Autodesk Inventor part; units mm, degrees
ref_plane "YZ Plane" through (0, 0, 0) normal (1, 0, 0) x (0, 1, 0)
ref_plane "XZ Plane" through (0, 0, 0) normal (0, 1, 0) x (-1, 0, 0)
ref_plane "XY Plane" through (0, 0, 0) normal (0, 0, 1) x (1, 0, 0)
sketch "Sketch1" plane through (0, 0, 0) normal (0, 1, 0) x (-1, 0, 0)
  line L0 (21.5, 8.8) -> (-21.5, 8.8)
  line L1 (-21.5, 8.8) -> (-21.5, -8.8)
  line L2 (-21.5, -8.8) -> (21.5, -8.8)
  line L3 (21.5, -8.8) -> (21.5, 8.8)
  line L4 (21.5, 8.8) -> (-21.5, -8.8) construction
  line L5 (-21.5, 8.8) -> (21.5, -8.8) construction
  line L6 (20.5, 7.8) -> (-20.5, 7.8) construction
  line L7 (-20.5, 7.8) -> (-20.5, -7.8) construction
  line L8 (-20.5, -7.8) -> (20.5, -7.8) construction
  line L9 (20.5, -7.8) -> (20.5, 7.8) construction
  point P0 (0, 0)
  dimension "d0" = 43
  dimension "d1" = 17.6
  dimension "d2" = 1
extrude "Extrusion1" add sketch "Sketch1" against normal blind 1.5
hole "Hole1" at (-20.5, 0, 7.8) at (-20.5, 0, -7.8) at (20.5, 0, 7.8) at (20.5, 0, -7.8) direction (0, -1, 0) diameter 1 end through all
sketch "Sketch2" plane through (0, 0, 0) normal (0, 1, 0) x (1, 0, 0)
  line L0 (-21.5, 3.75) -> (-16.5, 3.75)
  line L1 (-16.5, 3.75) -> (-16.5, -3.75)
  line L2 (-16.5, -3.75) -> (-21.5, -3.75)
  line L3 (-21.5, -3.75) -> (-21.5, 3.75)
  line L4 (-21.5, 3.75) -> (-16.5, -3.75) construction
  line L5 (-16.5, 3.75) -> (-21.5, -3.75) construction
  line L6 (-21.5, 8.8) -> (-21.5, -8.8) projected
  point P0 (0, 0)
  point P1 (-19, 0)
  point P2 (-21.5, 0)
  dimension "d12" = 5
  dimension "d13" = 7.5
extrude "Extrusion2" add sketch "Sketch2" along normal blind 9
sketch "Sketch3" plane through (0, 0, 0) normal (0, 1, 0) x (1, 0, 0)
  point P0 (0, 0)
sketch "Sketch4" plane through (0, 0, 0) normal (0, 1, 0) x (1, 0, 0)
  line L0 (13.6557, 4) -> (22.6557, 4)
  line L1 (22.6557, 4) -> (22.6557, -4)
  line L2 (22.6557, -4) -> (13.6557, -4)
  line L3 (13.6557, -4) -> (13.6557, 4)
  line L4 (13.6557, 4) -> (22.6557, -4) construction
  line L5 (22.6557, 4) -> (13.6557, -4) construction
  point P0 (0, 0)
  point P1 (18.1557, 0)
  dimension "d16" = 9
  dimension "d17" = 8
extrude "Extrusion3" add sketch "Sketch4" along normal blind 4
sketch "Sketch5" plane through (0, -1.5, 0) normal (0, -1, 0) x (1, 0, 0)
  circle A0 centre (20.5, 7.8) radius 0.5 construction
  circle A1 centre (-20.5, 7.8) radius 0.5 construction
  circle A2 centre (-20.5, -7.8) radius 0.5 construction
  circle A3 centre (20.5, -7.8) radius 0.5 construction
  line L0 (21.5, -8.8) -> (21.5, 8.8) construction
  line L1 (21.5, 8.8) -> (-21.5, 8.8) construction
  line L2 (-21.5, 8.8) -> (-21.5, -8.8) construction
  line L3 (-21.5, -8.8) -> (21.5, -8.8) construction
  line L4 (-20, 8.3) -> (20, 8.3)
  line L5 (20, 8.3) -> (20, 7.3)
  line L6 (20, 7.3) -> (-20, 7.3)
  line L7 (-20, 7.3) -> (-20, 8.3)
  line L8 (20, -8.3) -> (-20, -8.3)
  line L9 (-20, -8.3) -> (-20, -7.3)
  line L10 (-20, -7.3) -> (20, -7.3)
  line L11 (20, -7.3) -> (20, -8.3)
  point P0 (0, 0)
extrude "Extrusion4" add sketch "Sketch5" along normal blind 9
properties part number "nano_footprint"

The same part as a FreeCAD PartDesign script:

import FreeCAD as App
import Part
import Sketcher

V = App.Vector


def add_polygon(sketch, points):
    """Adds a closed chain of lines whose ends are joined by coincident constraints."""
    first, n = sketch.GeometryCount, len(points)
    for a, b in zip(points, points[1:] + points[:1]):
        sketch.addGeometry(Part.LineSegment(App.Vector(*a, 0), App.Vector(*b, 0)), False)
    for i in range(n):
        sketch.addConstraint(Sketcher.Constraint("Coincident", first + i, 2, first + (i + 1) % n, 1))

doc = App.newDocument("Part")
body = doc.addObject("PartDesign::Body", "Body")

# Sketch on XZ plane
sketch1 = doc.addObject("Sketcher::SketchObject", "Sketch")
body.addObject(sketch1)
sketch1.AttachmentSupport = (doc.XZ_Plane, [""])
sketch1.MapMode = "FlatFace"
add_polygon(sketch1, [(-21.5, -8.8), (-21.5, 8.8), (21.5, 8.8), (21.5, -8.8)])  # lines 0-3
sketch1.addConstraint([
    Sketcher.Constraint("Vertical", 0),
    Sketcher.Constraint("Horizontal", 1),
    Sketcher.Constraint("Vertical", 2),
    Sketcher.Constraint("Horizontal", 3),
    Sketcher.Constraint("Symmetric", 0, 2, 2, 2, -1, 1),
    Sketcher.Constraint("DistanceX", 1, 1, 1, 2, 43.0),
    Sketcher.Constraint("DistanceY", 0, 1, 0, 2, 17.6),
])
pad1 = doc.addObject("PartDesign::Pad", "Pad")
body.addObject(pad1)
pad1.Profile = sketch1
pad1.Length = 1.5

# Sketch on XZ plane
sketch2 = doc.addObject("Sketcher::SketchObject", "Sketch001")
body.addObject(sketch2)
sketch2.AttachmentSupport = (doc.XZ_Plane, [""])
sketch2.MapMode = "FlatFace"
sketch2.addGeometry([
    Part.Circle(V(-20.5, 7.8, 0), V(0, 0, 1), 0.5),
    Part.Circle(V(-20.5, -7.8, 0), V(0, 0, 1), 0.5),
    Part.Circle(V(20.5, 7.8, 0), V(0, 0, 1), 0.5),
    Part.Circle(V(20.5, -7.8, 0), V(0, 0, 1), 0.5),
], False)
sketch2.addConstraint([
    Sketcher.Constraint("Equal", 0, 1),
    Sketcher.Constraint("Equal", 1, 2),
    Sketcher.Constraint("Equal", 2, 3),
    Sketcher.Constraint("Symmetric", 1, 3, 2, 3, -1, 1),
    Sketcher.Constraint("Symmetric", 0, 3, 3, 3, -1, 1),
    Sketcher.Constraint("Symmetric", 0, 3, 2, 3, -2),
    Sketcher.Constraint("Diameter", 0, 1.0),
    Sketcher.Constraint("DistanceX", 0, 3, 2, 3, 41.0),
    Sketcher.Constraint("DistanceY", -1, 1, 0, 3, 7.8),
])
doc.recompute()
hole = doc.addObject("PartDesign::Hole", "Hole")
body.addObject(hole)
hole.Profile = sketch2
hole.ThreadType = "None"
hole.Diameter = 1
hole.DepthType = "ThroughAll"
hole.Reversed = True

# Sketch on XZ plane
sketch3 = doc.addObject("Sketcher::SketchObject", "Sketch002")
body.addObject(sketch3)
sketch3.AttachmentSupport = (doc.XZ_Plane, [""])
sketch3.MapMode = "FlatFace"
add_polygon(sketch3, [(-16.5, -3.75), (-21.5, -3.75), (-21.5, 3.75), (-16.5, 3.75)])  # lines 0-3
sketch3.addConstraint([
    Sketcher.Constraint("Horizontal", 0),
    Sketcher.Constraint("Vertical", 1),
    Sketcher.Constraint("Horizontal", 2),
    Sketcher.Constraint("Vertical", 3),
    Sketcher.Constraint("DistanceX", 0, 2, 0, 1, 5.0),
    Sketcher.Constraint("DistanceY", 1, 1, 1, 2, 7.5),
    Sketcher.Constraint("DistanceX", 0, 2, -1, 1, 21.5),
    Sketcher.Constraint("DistanceY", 0, 2, -1, 1, 3.75),
])
pad2 = doc.addObject("PartDesign::Pad", "Pad001")
body.addObject(pad2)
pad2.Profile = sketch3
pad2.Length = 9
pad2.Reversed = True

# Sketch on XZ plane
sketch4 = doc.addObject("Sketcher::SketchObject", "Sketch003")
body.addObject(sketch4)
sketch4.AttachmentSupport = (doc.XZ_Plane, [""])
sketch4.MapMode = "FlatFace"
add_polygon(sketch4, [(22.6557, -4), (13.6557, -4), (13.6557, 4), (22.6557, 4)])  # lines 0-3
sketch4.addConstraint([
    Sketcher.Constraint("Horizontal", 0),
    Sketcher.Constraint("Vertical", 1),
    Sketcher.Constraint("Horizontal", 2),
    Sketcher.Constraint("Vertical", 3),
    Sketcher.Constraint("DistanceX", 0, 2, 0, 1, 9.0),
    Sketcher.Constraint("DistanceY", 1, 1, 1, 2, 8.0),
    Sketcher.Constraint("DistanceY", 0, 2, -1, 1, 4.0),
    Sketcher.Constraint("DistanceX", -1, 1, 0, 2, 13.6557),
])
pad3 = doc.addObject("PartDesign::Pad", "Pad002")
body.addObject(pad3)
pad3.Profile = sketch4
pad3.Length = 4
pad3.Reversed = True

# Sketch on XZ plane
sketch5 = doc.addObject("Sketcher::SketchObject", "Sketch004")
body.addObject(sketch5)
sketch5.AttachmentSupport = (doc.XZ_Plane, [""])
sketch5.MapMode = "FlatFace"
sketch5.AttachmentOffset = App.Placement(V(0, 0, 1.5), App.Rotation())
add_polygon(sketch5, [(20, 8.3), (-20, 8.3), (-20, 7.3), (20, 7.3)])  # lines 0-3
add_polygon(sketch5, [(-20, -8.3), (20, -8.3), (20, -7.3), (-20, -7.3)])  # lines 4-7
sketch5.addConstraint([
    Sketcher.Constraint("Horizontal", 0),
    Sketcher.Constraint("Vertical", 1),
    Sketcher.Constraint("Horizontal", 2),
    Sketcher.Constraint("Vertical", 3),
    Sketcher.Constraint("Horizontal", 4),
    Sketcher.Constraint("Vertical", 5),
    Sketcher.Constraint("Horizontal", 6),
    Sketcher.Constraint("Vertical", 7),
    Sketcher.Constraint("Symmetric", 0, 2, 4, 2, -1, 1),
    Sketcher.Constraint("Symmetric", 2, 2, 6, 2, -1, 1),
    Sketcher.Constraint("Vertical", 3, 2, 4, 2),
    Sketcher.Constraint("DistanceX", 0, 2, 0, 1, 40.0),
    Sketcher.Constraint("DistanceY", 1, 2, 1, 1, 1.0),
    Sketcher.Constraint("DistanceY", -1, 1, 0, 2, 8.3),
])
pad4 = doc.addObject("PartDesign::Pad", "Pad003")
body.addObject(pad4)
pad4.Profile = sketch5
pad4.Length = 9

doc.recompute()
